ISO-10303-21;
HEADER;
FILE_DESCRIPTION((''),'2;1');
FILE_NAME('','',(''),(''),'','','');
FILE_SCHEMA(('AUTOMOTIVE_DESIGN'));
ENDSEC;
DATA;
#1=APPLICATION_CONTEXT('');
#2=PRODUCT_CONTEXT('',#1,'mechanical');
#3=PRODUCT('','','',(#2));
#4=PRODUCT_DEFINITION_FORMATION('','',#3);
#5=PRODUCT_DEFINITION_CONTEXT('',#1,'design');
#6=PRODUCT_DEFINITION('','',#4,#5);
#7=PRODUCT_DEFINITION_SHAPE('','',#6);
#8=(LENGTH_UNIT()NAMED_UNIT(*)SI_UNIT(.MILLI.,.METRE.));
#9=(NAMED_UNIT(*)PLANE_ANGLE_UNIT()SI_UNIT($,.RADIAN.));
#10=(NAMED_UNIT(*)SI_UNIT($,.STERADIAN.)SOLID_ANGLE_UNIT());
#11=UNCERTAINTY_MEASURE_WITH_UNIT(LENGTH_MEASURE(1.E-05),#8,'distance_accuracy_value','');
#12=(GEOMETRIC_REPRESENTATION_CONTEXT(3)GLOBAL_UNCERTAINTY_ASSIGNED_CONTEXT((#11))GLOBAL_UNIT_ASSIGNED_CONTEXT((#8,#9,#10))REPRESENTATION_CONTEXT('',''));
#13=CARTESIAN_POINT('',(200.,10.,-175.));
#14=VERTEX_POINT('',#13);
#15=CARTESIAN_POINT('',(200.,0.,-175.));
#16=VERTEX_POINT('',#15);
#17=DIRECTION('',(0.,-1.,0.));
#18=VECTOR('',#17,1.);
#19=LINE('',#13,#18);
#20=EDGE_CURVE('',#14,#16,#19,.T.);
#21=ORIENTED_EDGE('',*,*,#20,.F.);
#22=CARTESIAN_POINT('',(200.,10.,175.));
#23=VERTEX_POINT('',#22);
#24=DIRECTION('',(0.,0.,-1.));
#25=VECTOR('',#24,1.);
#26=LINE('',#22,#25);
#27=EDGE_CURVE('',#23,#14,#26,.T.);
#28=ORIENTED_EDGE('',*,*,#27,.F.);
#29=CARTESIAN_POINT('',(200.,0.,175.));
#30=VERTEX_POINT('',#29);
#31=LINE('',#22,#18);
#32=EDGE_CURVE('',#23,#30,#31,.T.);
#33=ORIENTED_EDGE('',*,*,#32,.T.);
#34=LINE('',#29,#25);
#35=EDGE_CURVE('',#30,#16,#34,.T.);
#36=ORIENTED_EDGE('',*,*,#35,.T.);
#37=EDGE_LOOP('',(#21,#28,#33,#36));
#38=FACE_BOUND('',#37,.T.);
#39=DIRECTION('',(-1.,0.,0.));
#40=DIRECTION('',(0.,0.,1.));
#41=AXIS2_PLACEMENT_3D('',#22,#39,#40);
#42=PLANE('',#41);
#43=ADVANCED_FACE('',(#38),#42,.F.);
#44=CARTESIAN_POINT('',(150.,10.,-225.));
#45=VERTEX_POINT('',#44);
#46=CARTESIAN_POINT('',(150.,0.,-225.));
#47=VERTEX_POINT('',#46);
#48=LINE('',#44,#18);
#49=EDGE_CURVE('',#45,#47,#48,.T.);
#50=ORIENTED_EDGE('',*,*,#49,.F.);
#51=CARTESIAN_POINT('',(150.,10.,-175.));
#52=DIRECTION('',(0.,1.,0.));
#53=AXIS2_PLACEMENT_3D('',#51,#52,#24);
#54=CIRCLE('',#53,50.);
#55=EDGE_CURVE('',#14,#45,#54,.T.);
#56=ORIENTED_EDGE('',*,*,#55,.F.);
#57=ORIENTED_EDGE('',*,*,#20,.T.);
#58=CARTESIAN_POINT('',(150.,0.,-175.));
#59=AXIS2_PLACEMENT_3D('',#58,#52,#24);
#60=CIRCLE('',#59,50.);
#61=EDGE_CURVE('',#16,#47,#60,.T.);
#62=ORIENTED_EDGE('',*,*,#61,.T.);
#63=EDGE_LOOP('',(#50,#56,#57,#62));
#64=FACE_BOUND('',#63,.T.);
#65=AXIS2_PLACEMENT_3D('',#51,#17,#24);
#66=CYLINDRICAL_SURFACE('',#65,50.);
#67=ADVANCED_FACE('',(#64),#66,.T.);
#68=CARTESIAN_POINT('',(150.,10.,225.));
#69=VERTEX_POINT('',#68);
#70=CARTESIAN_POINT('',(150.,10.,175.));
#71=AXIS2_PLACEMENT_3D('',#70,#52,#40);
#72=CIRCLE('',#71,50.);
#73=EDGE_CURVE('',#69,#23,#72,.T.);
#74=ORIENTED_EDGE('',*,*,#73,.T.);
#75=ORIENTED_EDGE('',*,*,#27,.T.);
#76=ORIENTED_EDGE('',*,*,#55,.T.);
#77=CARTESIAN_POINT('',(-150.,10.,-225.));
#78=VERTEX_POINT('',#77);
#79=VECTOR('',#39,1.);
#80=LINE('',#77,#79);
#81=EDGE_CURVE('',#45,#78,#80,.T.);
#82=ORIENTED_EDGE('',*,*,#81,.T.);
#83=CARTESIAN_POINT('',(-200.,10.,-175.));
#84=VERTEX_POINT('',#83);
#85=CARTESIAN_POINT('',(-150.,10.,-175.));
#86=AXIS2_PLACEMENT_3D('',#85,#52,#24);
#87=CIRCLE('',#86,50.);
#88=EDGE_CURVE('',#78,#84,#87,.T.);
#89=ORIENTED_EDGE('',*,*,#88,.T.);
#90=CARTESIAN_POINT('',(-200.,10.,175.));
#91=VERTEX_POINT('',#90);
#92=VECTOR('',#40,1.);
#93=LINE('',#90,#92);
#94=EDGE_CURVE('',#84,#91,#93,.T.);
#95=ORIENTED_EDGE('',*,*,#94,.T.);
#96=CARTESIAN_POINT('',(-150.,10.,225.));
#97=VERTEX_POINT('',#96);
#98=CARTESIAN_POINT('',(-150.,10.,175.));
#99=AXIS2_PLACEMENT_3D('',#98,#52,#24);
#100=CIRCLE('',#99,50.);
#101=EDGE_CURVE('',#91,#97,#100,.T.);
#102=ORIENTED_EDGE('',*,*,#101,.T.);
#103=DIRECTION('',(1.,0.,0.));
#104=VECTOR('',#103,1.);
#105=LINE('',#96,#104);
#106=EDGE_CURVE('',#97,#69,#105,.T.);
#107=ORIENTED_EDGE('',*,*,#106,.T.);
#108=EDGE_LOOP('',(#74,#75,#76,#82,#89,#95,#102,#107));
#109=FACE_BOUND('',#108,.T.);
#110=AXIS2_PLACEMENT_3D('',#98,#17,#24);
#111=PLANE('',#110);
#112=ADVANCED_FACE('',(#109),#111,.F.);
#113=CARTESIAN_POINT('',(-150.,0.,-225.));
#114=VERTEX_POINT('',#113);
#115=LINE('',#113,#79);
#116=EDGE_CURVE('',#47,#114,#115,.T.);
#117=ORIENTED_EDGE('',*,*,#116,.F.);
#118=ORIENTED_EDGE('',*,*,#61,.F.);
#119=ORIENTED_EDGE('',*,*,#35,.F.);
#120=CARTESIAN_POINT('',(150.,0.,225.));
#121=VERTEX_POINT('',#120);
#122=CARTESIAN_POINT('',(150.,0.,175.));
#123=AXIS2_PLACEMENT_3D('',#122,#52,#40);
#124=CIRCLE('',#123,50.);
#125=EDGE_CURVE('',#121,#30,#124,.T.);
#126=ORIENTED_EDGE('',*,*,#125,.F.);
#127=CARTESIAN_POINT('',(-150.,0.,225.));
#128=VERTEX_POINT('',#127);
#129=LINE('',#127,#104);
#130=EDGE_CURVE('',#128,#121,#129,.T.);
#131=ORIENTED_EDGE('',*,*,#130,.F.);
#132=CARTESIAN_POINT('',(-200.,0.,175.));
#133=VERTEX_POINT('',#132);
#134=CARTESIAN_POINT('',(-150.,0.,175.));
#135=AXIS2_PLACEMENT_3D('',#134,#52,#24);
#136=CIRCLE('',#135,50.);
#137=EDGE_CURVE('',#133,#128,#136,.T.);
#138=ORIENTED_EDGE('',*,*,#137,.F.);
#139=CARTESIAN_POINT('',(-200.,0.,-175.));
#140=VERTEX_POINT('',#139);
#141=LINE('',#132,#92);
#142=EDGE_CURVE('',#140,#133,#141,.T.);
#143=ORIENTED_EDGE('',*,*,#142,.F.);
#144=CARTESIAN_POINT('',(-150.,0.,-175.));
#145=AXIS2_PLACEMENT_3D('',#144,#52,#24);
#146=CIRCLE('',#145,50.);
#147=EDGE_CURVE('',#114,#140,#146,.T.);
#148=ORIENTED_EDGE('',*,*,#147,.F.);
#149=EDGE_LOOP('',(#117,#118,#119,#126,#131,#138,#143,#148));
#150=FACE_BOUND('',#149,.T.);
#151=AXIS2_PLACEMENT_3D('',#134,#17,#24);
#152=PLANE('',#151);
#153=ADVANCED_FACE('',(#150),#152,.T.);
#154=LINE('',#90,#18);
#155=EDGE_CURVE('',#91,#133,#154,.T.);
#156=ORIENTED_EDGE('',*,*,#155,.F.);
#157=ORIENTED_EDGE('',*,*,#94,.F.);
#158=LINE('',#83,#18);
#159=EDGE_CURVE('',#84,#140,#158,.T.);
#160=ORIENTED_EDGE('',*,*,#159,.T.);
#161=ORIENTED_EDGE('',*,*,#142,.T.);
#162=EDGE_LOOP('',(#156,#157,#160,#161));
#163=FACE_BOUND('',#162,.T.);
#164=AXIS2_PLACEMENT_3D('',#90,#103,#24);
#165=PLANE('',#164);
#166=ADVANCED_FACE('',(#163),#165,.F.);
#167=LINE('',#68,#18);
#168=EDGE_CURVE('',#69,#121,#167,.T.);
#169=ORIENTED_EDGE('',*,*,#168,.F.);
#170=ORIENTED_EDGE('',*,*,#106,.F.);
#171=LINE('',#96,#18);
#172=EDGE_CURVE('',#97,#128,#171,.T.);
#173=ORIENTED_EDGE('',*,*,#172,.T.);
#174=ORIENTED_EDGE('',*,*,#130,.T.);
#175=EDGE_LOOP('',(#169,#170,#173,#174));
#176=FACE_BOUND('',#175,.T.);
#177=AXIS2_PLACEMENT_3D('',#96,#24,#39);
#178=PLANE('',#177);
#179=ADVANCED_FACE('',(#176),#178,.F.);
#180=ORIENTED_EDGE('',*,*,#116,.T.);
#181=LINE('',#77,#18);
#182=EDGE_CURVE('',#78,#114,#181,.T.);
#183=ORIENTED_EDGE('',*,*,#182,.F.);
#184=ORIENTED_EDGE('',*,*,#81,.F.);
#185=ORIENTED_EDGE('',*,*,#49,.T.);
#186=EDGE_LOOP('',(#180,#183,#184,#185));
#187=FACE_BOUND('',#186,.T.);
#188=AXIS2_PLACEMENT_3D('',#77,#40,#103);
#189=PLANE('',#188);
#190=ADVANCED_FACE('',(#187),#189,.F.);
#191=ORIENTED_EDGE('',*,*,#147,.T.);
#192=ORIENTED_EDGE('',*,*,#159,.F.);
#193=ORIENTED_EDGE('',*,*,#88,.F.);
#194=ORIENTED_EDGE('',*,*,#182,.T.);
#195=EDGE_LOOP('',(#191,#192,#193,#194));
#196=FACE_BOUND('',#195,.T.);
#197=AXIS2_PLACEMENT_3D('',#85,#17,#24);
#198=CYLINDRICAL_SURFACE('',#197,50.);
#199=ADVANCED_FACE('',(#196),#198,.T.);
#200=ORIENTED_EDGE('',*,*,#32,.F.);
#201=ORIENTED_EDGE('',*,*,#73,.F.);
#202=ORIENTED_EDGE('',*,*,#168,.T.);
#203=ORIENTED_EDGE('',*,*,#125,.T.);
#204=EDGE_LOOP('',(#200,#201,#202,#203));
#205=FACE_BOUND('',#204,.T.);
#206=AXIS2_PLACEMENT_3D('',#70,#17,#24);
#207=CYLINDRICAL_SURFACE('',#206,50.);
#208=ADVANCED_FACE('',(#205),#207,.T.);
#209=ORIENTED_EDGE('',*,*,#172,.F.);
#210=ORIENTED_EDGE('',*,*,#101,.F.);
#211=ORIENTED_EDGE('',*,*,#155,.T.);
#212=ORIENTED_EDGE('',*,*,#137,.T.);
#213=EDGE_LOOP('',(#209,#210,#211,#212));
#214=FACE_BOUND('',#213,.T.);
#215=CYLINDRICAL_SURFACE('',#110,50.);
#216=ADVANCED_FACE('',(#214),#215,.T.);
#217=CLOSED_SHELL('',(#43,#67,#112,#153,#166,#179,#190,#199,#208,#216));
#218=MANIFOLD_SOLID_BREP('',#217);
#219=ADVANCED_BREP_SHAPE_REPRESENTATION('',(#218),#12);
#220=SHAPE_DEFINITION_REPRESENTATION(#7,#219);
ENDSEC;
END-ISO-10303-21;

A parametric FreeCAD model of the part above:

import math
import FreeCAD as App
import Part
import Sketcher
from FreeCAD import Vector

doc = App.newDocument("Part")
body = doc.addObject("PartDesign::Body", "Body")

sketch1 = body.newObject("Sketcher::SketchObject", "Sketch")
sketch1.AttachmentSupport = (doc.getObject("XZ_Plane"), [""])
sketch1.MapMode = "FlatFace"
sketch1.addGeometry(Part.LineSegment(Vector(-150, 225, 0), Vector(150, 225, 0)), False)
sketch1.addGeometry(Part.ArcOfCircle(Part.Circle(Vector(150, 175, 0), Vector(0, 0, 1), 50), math.radians(0), math.radians(90)), False)
sketch1.addGeometry(Part.LineSegment(Vector(200, 175, 0), Vector(200, -175, 0)), False)
sketch1.addGeometry(Part.ArcOfCircle(Part.Circle(Vector(150, -175, 0), Vector(0, 0, 1), 50), math.radians(-90), math.radians(0)), False)
sketch1.addGeometry(Part.LineSegment(Vector(150, -225, 0), Vector(-150, -225, 0)), False)
sketch1.addGeometry(Part.ArcOfCircle(Part.Circle(Vector(-150, -175, 0), Vector(0, 0, 1), 50), math.radians(-180), math.radians(-90)), False)
sketch1.addGeometry(Part.LineSegment(Vector(-200, -175, 0), Vector(-200, 175, 0)), False)
sketch1.addGeometry(Part.ArcOfCircle(Part.Circle(Vector(-150, 175, 0), Vector(0, 0, 1), 50), math.radians(90), math.radians(180)), False)
sketch1.addConstraint(Sketcher.Constraint("Tangent", 0, 2, 1, 2))
sketch1.addConstraint(Sketcher.Constraint("Tangent", 1, 1, 2, 1))
sketch1.addConstraint(Sketcher.Constraint("Tangent", 2, 2, 3, 2))
sketch1.addConstraint(Sketcher.Constraint("Tangent", 3, 1, 4, 1))
sketch1.addConstraint(Sketcher.Constraint("Tangent", 4, 2, 5, 2))
sketch1.addConstraint(Sketcher.Constraint("Tangent", 5, 1, 6, 1))
sketch1.addConstraint(Sketcher.Constraint("Tangent", 6, 2, 7, 2))
sketch1.addConstraint(Sketcher.Constraint("Tangent", 7, 1, 0, 1))
sketch1.addConstraint(Sketcher.Constraint("Horizontal", 0))
sketch1.addConstraint(Sketcher.Constraint("Vertical", 2))
sketch1.addConstraint(Sketcher.Constraint("Horizontal", 4))
sketch1.addConstraint(Sketcher.Constraint("Vertical", 6))
sketch1.addConstraint(Sketcher.Constraint("Equal", 1, 3))
sketch1.addConstraint(Sketcher.Constraint("Equal", 3, 5))
sketch1.addConstraint(Sketcher.Constraint("Equal", 5, 7))
sketch1.addConstraint(Sketcher.Constraint("Symmetric", 1, 3, 5, 3, -1, 1))
sketch1.addConstraint(Sketcher.Constraint("Radius", 1, 50.0))
sketch1.addConstraint(Sketcher.Constraint("DistanceX", 0, 1, 0, 2, 300.0))
sketch1.addConstraint(Sketcher.Constraint("DistanceY", 2, 2, 2, 1, 350.0))
pad1 = body.newObject("PartDesign::Pad", "Pad")
pad1.Profile = sketch1
pad1.Length = 10
pad1.Reversed = True

doc.recompute()
